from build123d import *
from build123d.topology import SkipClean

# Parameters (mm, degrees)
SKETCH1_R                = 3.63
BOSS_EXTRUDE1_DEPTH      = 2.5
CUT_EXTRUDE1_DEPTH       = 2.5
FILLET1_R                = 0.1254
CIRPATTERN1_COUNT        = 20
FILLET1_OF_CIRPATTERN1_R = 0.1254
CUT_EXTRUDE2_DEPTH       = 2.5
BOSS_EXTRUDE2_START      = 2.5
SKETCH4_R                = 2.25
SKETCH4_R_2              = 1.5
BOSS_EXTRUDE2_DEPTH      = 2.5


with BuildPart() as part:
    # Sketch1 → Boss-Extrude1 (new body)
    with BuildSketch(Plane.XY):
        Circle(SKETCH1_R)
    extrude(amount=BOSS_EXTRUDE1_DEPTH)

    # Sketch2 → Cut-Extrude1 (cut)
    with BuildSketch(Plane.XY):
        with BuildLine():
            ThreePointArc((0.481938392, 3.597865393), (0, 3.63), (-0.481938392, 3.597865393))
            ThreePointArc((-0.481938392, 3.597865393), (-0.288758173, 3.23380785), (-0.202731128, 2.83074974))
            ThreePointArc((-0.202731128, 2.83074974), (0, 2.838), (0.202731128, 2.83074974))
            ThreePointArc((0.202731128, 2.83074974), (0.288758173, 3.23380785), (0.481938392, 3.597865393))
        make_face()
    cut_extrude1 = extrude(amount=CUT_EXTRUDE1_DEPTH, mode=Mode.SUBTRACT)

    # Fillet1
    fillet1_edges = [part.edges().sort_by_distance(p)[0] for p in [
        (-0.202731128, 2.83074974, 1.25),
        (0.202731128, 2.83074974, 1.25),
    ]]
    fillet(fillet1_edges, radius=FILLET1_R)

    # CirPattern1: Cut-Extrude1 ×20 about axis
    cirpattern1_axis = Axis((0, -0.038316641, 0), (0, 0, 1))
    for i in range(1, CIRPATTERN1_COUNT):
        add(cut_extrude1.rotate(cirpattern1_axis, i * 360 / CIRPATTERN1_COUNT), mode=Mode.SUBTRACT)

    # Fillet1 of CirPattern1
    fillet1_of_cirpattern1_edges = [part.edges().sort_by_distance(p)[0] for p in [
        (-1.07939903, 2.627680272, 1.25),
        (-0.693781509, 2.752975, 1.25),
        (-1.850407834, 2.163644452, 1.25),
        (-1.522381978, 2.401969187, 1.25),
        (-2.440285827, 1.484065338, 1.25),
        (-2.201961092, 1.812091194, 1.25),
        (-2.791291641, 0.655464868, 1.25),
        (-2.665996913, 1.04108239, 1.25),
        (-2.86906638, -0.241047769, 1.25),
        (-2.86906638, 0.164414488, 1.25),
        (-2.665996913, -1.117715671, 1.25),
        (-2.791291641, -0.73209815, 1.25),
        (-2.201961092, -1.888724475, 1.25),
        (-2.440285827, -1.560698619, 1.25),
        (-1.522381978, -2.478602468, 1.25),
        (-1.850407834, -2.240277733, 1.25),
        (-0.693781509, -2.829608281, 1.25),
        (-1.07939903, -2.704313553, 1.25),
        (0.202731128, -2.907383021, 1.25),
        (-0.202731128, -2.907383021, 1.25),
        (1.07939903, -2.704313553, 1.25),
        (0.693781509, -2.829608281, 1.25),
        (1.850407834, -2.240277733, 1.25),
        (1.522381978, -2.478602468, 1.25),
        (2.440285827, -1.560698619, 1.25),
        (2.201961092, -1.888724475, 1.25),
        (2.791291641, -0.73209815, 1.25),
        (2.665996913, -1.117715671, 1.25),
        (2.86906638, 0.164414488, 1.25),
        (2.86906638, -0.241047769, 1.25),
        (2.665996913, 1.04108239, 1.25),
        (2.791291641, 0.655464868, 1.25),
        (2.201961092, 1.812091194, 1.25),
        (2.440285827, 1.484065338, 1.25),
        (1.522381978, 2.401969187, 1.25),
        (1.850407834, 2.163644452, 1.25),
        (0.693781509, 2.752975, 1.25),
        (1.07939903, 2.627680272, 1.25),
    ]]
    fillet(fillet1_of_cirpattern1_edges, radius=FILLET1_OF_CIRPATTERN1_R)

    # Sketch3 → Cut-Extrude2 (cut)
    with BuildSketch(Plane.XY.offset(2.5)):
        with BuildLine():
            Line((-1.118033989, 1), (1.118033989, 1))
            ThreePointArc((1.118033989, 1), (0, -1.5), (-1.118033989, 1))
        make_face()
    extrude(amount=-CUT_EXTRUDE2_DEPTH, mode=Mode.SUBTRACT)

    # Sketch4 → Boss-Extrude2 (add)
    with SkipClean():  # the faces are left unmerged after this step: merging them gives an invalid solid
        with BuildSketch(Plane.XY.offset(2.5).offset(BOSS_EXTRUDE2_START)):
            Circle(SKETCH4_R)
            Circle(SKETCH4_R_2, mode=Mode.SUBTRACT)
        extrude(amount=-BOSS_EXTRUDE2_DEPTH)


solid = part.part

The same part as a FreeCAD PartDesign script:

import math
import FreeCAD as App
import Part
import Sketcher

V = App.Vector
Q = App.Units.Quantity


def edges_at(feature, points):
    """Names of the edges that pass closest to the given points."""
    edges = feature.Shape.Edges
    near = lambda p: min(range(len(edges)), key=lambda i: edges[i].distToShape(Part.Vertex(*p))[0])
    return sorted({f"Edge{near(p) + 1}" for p in points})

doc = App.newDocument("Part")
body = doc.addObject("PartDesign::Body", "Body")

# Sketch on XY plane
sketch1 = body.newObject("Sketcher::SketchObject", "Sketch")
sketch1.AttachmentSupport = (doc.getObject("XY_Plane"), [""])
sketch1.MapMode = "FlatFace"
sketch1.addGeometry(Part.Circle(V(0, 0, 0), V(0, 0, 1), 3.63), False)
sketch1.addConstraint([
    Sketcher.Constraint("Coincident", 0, 3, -1, 1),
    Sketcher.Constraint("Diameter", 0, Q("7.26 mm")),
])
pad1 = body.newObject("PartDesign::Pad", "Pad")
pad1.Profile = sketch1
pad1.Length = 2.5

# Sketch on XY plane
sketch2 = body.newObject("Sketcher::SketchObject", "Sketch001")
sketch2.AttachmentSupport = (doc.getObject("XY_Plane"), [""])
sketch2.MapMode = "FlatFace"
sketch2.addGeometry([
    Part.ArcOfCircle(Part.Circle(V(0, 0, 0), V(0, 0, 1), 3.63), math.radians(82.370577), math.radians(97.629423)),
    Part.ArcOfCircle(Part.Circle(V(-1.688503, 2.724343, 0), V(0, 0, 1), 1.489577), math.radians(4.096385), math.radians(35.903615)),
    Part.ArcOfCircle(Part.Circle(V(0, 0, 0), V(0, 0, 1), 2.838), math.radians(85.903615), math.radians(94.096385)),
    Part.ArcOfCircle(Part.Circle(V(1.688503, 2.724343, 0), V(0, 0, 1), 1.489577), math.radians(144.096385), math.radians(175.903615)),
], False)
sketch2.addConstraint([
    Sketcher.Constraint("Coincident", 0, 2, 1, 2),
    Sketcher.Constraint("Coincident", 1, 1, 2, 2),
    Sketcher.Constraint("Coincident", 2, 1, 3, 2),
    Sketcher.Constraint("Coincident", 3, 1, 0, 1),
    Sketcher.Constraint("Coincident", 0, 3, -1, 1),
    Sketcher.Constraint("Coincident", 2, 3, -1, 1),
    Sketcher.Constraint("Equal", 1, 3),
    Sketcher.Constraint("Symmetric", 1, 3, 3, 3, -2),
    Sketcher.Constraint("Radius", 0, Q("3.63 mm")),
    Sketcher.Constraint("Radius", 2, Q("2.838 mm")),
    Sketcher.Constraint("Radius", 1, Q("1.489577 mm")),
    Sketcher.Constraint("DistanceX", 0, 2, -1, 1, Q("0.481938 mm")),
    Sketcher.Constraint("DistanceX", 1, 1, -1, 1, Q("0.202731 mm")),
])
pocket1 = body.newObject("PartDesign::Pocket", "Pocket")
pocket1.Profile = sketch2
pocket1.Length = 2.5
pocket1.Reversed = True
doc.recompute()

fillet = body.newObject("PartDesign::Fillet", "Fillet")
fillet.Base = (pocket1, edges_at(pocket1, [(-0.203, 2.831, 1.25), (0.203, 2.831, 1.25)]))
fillet.Radius = 0.1254
doc.recompute()

datumline = body.newObject("PartDesign::Line", "DatumLine")
datumline.Placement = App.Placement(V(0, -0.038317, 0), App.Rotation(V(0, 0, 1), V(0, 0, 1)))
polarpattern = body.newObject("PartDesign::PolarPattern", "PolarPattern")
polarpattern.Originals = [pocket1]
polarpattern.Axis = (datumline, [""])
polarpattern.Angle = 360
polarpattern.Occurrences = 20
body.Tip = polarpattern
doc.recompute()

fillet2 = body.newObject("PartDesign::Fillet", "Fillet001")
fillet2.Base = (polarpattern, edges_at(polarpattern, [
    (-1.079, 2.628, 1.25),
    (-0.694, 2.753, 1.25),
    (-1.85, 2.164, 1.25),
    (-1.522, 2.402, 1.25),
    (-2.44, 1.484, 1.25),
    (-2.202, 1.812, 1.25),
    (-2.791, 0.655, 1.25),
    (-2.666, 1.041, 1.25),
    (-2.869, -0.241, 1.25),
    (-2.869, 0.164, 1.25),
    (-2.666, -1.118, 1.25),
    (-2.791, -0.732, 1.25),
    (-2.202, -1.889, 1.25),
    (-2.44, -1.561, 1.25),
    (-1.522, -2.479, 1.25),
    (-1.85, -2.24, 1.25),
    (-0.694, -2.83, 1.25),
    (-1.079, -2.704, 1.25),
    (0.203, -2.907, 1.25),
    (-0.203, -2.907, 1.25),
    (1.079, -2.704, 1.25),
    (0.694, -2.83, 1.25),
    (1.85, -2.24, 1.25),
    (1.522, -2.479, 1.25),
    (2.44, -1.561, 1.25),
    (2.202, -1.889, 1.25),
    (2.791, -0.732, 1.25),
    (2.666, -1.118, 1.25),
    (2.869, 0.164, 1.25),
    (2.869, -0.241, 1.25),
    (2.666, 1.041, 1.25),
    (2.791, 0.655, 1.25),
    (2.202, 1.812, 1.25),
    (2.44, 1.484, 1.25),
    (1.522, 2.402, 1.25),
    (1.85, 2.164, 1.25),
    (0.694, 2.753, 1.25),
    (1.079, 2.628, 1.25),
]))
fillet2.Radius = 0.1254

# Sketch on XY plane
sketch3 = body.newObject("Sketcher::SketchObject", "Sketch002")
sketch3.AttachmentSupport = (doc.getObject("XY_Plane"), [""])
sketch3.MapMode = "FlatFace"
sketch3.AttachmentOffset = App.Placement(V(0, 0, 2.5), App.Rotation())
sketch3.addGeometry([
    Part.LineSegment(V(1.118034, 1, 0), V(-1.118034, 1, 0)),
    Part.ArcOfCircle(Part.Circle(V(0, 0, 0), V(0, 0, 1), 1.5), math.radians(138.189685), math.radians(401.810315)),
], False)
sketch3.addConstraint([
    Sketcher.Constraint("Coincident", 0, 1, 1, 2),
    Sketcher.Constraint("Coincident", 1, 1, 0, 2),
    Sketcher.Constraint("Horizontal", 0),
    Sketcher.Constraint("Coincident", 1, 3, -1, 1),
    Sketcher.Constraint("Radius", 1, Q("1.5 mm")),
    Sketcher.Constraint("DistanceY", -1, 1, 0, 1, Q("1 mm")),
])
pocket2 = body.newObject("PartDesign::Pocket", "Pocket001")
pocket2.Profile = sketch3
pocket2.Length = 2.5

# Sketch on XY plane
sketch4 = body.newObject("Sketcher::SketchObject", "Sketch003")
sketch4.AttachmentSupport = (doc.getObject("XY_Plane"), [""])
sketch4.MapMode = "FlatFace"
sketch4.AttachmentOffset = App.Placement(V(0, 0, 5), App.Rotation())
sketch4.addGeometry([
    Part.Circle(V(0, 0, 0), V(0, 0, 1), 2.25),
    Part.Circle(V(0, 0, 0), V(0, 0, 1), 1.5),
], False)
sketch4.addConstraint([
    Sketcher.Constraint("Coincident", 0, 3, -1, 1),
    Sketcher.Constraint("Coincident", 1, 3, -1, 1),
    Sketcher.Constraint("Diameter", 1, Q("3 mm")),
    Sketcher.Constraint("Diameter", 0, Q("4.5 mm")),
])
pad2 = body.newObject("PartDesign::Pad", "Pad001")
pad2.Profile = sketch4
pad2.Length = 2.5
pad2.Reversed = True

doc.recompute()
